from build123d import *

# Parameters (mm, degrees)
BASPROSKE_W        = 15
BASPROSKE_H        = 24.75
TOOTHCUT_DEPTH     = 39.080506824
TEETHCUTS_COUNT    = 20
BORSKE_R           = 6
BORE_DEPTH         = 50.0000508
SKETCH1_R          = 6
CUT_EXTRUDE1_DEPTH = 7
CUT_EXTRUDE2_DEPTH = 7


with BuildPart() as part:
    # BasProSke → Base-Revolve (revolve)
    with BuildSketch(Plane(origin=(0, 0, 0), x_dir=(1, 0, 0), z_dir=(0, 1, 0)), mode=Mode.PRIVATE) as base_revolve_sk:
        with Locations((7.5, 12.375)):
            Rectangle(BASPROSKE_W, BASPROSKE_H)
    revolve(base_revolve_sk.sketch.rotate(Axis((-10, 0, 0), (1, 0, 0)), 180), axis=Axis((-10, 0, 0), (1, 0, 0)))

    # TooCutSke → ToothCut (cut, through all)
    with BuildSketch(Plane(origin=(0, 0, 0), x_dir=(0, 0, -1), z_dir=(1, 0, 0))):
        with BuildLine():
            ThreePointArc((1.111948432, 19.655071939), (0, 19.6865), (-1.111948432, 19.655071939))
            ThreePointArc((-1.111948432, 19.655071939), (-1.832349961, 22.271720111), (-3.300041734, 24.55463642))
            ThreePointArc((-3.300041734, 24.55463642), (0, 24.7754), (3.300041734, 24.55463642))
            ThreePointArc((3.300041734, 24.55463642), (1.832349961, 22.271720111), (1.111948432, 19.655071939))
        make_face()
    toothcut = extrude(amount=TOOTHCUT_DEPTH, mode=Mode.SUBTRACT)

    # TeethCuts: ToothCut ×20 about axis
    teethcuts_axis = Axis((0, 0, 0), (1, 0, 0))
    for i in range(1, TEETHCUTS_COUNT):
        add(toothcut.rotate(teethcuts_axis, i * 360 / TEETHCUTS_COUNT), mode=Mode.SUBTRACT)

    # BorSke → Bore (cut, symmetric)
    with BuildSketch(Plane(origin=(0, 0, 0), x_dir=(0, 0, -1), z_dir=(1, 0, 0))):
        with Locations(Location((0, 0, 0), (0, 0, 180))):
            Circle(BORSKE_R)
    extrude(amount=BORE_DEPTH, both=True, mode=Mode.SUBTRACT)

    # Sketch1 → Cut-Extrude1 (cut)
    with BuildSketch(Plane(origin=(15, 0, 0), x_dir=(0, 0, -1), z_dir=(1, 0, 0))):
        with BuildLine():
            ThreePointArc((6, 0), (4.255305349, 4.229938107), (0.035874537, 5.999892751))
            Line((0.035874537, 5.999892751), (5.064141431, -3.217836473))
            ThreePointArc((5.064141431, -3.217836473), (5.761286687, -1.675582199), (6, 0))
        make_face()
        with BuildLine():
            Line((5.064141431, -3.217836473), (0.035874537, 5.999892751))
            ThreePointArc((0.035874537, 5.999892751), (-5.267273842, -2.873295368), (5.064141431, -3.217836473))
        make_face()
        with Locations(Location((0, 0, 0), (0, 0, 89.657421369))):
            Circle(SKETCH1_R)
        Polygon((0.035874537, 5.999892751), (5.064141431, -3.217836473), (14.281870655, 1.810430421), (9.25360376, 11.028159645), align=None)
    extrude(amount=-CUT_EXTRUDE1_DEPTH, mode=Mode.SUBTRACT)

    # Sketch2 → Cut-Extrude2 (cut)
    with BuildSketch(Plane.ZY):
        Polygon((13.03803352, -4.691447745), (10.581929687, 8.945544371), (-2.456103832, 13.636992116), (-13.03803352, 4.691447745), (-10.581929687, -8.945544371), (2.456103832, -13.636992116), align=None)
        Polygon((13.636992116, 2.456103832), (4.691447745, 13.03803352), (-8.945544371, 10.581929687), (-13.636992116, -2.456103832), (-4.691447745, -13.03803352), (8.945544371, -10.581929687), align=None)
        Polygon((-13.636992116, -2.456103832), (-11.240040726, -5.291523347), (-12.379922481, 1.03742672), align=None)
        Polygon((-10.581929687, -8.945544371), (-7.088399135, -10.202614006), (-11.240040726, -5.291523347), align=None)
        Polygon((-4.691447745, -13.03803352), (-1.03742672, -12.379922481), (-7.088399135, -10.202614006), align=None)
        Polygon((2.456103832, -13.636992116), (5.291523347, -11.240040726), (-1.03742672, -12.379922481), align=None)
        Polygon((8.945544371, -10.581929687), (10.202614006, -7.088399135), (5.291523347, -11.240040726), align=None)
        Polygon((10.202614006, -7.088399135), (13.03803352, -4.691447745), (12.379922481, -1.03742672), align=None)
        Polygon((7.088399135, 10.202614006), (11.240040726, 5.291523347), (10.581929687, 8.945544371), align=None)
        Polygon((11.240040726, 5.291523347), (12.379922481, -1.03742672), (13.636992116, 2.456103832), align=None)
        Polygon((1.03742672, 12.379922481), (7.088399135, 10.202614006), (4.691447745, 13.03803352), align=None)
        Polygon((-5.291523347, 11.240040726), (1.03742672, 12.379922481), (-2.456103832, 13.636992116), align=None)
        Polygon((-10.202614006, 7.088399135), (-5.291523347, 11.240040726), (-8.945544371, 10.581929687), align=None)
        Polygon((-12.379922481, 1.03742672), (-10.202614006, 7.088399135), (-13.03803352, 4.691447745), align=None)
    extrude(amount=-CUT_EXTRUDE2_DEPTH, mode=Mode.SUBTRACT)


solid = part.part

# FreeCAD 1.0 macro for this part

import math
import FreeCAD as App
import Part
import Sketcher
from FreeCAD import Vector
Q = App.Units.Quantity


def add_polygon(sketch, points):
    """Adds a closed chain of lines whose ends are joined by coincident constraints."""
    first, n = sketch.GeometryCount, len(points)
    for a, b in zip(points, points[1:] + points[:1]):
        sketch.addGeometry(Part.LineSegment(App.Vector(*a, 0), App.Vector(*b, 0)), False)
    for i in range(n):
        sketch.addConstraint(Sketcher.Constraint("Coincident", first + i, 2, first + (i + 1) % n, 1))

doc = App.newDocument("Part")
body = doc.addObject("PartDesign::Body", "Body")

# Sketch on XZ plane
sketch1 = body.newObject("Sketcher::SketchObject", "Sketch")
sketch1.AttachmentSupport = (doc.getObject("XZ_Plane"), [""])
sketch1.MapMode = "FlatFace"
add_polygon(sketch1, [(0, -25), (0, 0), (15, 0), (15, -25)])  # lines 0-3
sketch1.addConstraint([
    Sketcher.Constraint("Vertical", 0),
    Sketcher.Constraint("Horizontal", 1),
    Sketcher.Constraint("Vertical", 2),
    Sketcher.Constraint("Horizontal", 3),
    Sketcher.Constraint("Coincident", 0, 2, -1, 1),
    Sketcher.Constraint("DistanceX", 1, 1, 1, 2, Q("15 mm")),
    Sketcher.Constraint("DistanceY", 0, 1, 0, 2, Q("24.75 mm")),
])
revolution = body.newObject("PartDesign::Revolution", "Revolution")
revolution.Profile = sketch1
revolution.ReferenceAxis = (sketch1, ["H_Axis"])
revolution.Angle = 360

# Sketch on YZ plane
sketch2 = body.newObject("Sketcher::SketchObject", "Sketch001")
sketch2.AttachmentSupport = (doc.getObject("YZ_Plane"), [""])
sketch2.MapMode = "FlatFace"
sketch2.addGeometry([
    Part.ArcOfCircle(Part.Circle(Vector(0, 0, 0), Vector(0, 0, 1), 19.7), math.radians(-3.24), math.radians(3.24)),
    Part.ArcOfCircle(Part.Circle(Vector(18.6, -10.1, 0), Vector(0, 0, 1), 9), math.radians(49), math.radians(83)),
    Part.ArcOfCircle(Part.Circle(Vector(0, 0, 0), Vector(0, 0, 1), 24.8), math.radians(-7.65), math.radians(7.65)),
    Part.ArcOfCircle(Part.Circle(Vector(18.6, 10.1, 0), Vector(0, 0, 1), 9), math.radians(-83), math.radians(-49)),
], False)
sketch2.addConstraint([
    Sketcher.Constraint("Coincident", 0, 1, 1, 2),
    Sketcher.Constraint("Coincident", 1, 1, 2, 1),
    Sketcher.Constraint("Coincident", 2, 2, 3, 2),
    Sketcher.Constraint("Coincident", 3, 1, 0, 2),
    Sketcher.Constraint("Coincident", 0, 3, -1, 1),
    Sketcher.Constraint("Coincident", 2, 3, -1, 1),
    Sketcher.Constraint("Equal", 1, 3),
    Sketcher.Constraint("Symmetric", 1, 3, 3, 3, -1),
    Sketcher.Constraint("Radius", 1, Q("9 mm")),
    Sketcher.Constraint("Radius", 0, Q("19.6865 mm")),
    Sketcher.Constraint("Radius", 2, Q("24.7754 mm")),
    Sketcher.Constraint("DistanceY", 1, 3, -1, 1, Q("10.050099 mm")),
    Sketcher.Constraint("DistanceX", -1, 1, 1, 3, Q("18.601761 mm")),
])
pocket1 = body.newObject("PartDesign::Pocket", "Pocket")
pocket1.Profile = sketch2
pocket1.Type = "ThroughAll"
pocket1.Reversed = True
doc.recompute()

polarpattern = body.newObject("PartDesign::PolarPattern", "PolarPattern")
polarpattern.Originals = [pocket1]
polarpattern.Axis = (doc.getObject("X_Axis"), [""])
polarpattern.Angle = 360
polarpattern.Occurrences = 20
body.Tip = polarpattern

# Sketch on YZ plane
sketch3 = body.newObject("Sketcher::SketchObject", "Sketch002")
sketch3.AttachmentSupport = (doc.getObject("YZ_Plane"), [""])
sketch3.MapMode = "FlatFace"
sketch3.addGeometry(Part.Circle(Vector(0, 0, 0), Vector(0, 0, 1), 6), False)
sketch3.addConstraint([
    Sketcher.Constraint("Coincident", 0, 3, -1, 1),
    Sketcher.Constraint("Diameter", 0, Q("12 mm")),
])
pocket2 = body.newObject("PartDesign::Pocket", "Pocket001")
pocket2.Profile = sketch3
pocket2.Length = 100.000102
pocket2.Midplane = True

# Sketch on YZ plane
sketch4 = body.newObject("Sketcher::SketchObject", "Sketch003")
sketch4.AttachmentSupport = (doc.getObject("YZ_Plane"), [""])
sketch4.MapMode = "FlatFace"
sketch4.AttachmentOffset = App.Placement(Vector(0, 0, 15), App.Rotation())
sketch4.addGeometry([
    Part.LineSegment(Vector(11, -9, 0), Vector(6, 0, 0)),
    Part.ArcOfCircle(Part.Circle(Vector(0, 0, 0), Vector(0, 0, 1), 6), math.radians(0), math.radians(238)),
    Part.LineSegment(Vector(-3, -5, 0), Vector(2, -14, 0)),
    Part.LineSegment(Vector(2, -14, 0), Vector(11, -9, 0)),
], False)
sketch4.addConstraint([
    Sketcher.Constraint("Coincident", 0, 2, 1, 1),
    Sketcher.Constraint("Coincident", 1, 2, 2, 1),
    Sketcher.Constraint("Coincident", 2, 2, 3, 1),
    Sketcher.Constraint("Coincident", 3, 2, 0, 1),
    Sketcher.Constraint("Coincident", 1, 3, -1, 1),
    Sketcher.Constraint("Parallel", 0, 2),
    Sketcher.Constraint("Perpendicular", 2, 3),
    Sketcher.Constraint("Equal", 0, 2),
    Sketcher.Constraint("Equal", 2, 3),
    Sketcher.Constraint("Radius", 1, Q("6 mm")),
    Sketcher.Constraint("Distance", 0, Q("10.5 mm")),
    Sketcher.Constraint("DistanceY", 1, 2, -1, 1, Q("5.064141 mm")),
])
pocket3 = body.newObject("PartDesign::Pocket", "Pocket002")
pocket3.Profile = sketch4
pocket3.Length = 7

# Sketch on YZ plane
sketch5 = body.newObject("Sketcher::SketchObject", "Sketch004")
sketch5.AttachmentSupport = (doc.getObject("YZ_Plane"), [""])
sketch5.MapMode = "FlatFace"
add_polygon(sketch5, [(7.1, -10.2), (4.7, -13), (1, -12.4), (-2.5, -13.6), (-5.3, -11.2), (-8.9, -10.6), (-10.2, -7.1), (-13, -4.7), (-12.4, -1), (-13.6, 2.5), (-11.2, 5.3), (-10.6, 8.9), (-7.1, 10.2), (-4.7, 13), (-1, 12.4), (2.5, 13.6), (5.3, 11.2), (8.9, 10.6), (10.2, 7.1), (13, 4.7), (12.4, 1), (13.6, -2.5), (11.2, -5.3), (10.6, -8.9)])  # lines 0-23
sketch5.addConstraint([
    Sketcher.Constraint("Symmetric", 0, 2, 12, 2, -1, 1),
    Sketcher.Constraint("Symmetric", 1, 2, 13, 2, -1, 1),
    Sketcher.Constraint("Symmetric", 2, 2, 14, 2, -1, 1),
    Sketcher.Constraint("Symmetric", 3, 2, 15, 2, -1, 1),
    Sketcher.Constraint("Symmetric", 4, 2, 16, 2, -1, 1),
    Sketcher.Constraint("Symmetric", 5, 2, 17, 2, -1, 1),
    Sketcher.Constraint("Symmetric", 6, 2, 18, 2, -1, 1),
    Sketcher.Constraint("Symmetric", 7, 2, 19, 2, -1, 1),
    Sketcher.Constraint("Symmetric", 8, 2, 20, 2, -1, 1),
    Sketcher.Constraint("Symmetric", 9, 2, 21, 2, -1, 1),
    Sketcher.Constraint("Symmetric", 10, 2, 22, 2, -1, 1),
    Sketcher.Constraint("Symmetric", 11, 2, 23, 2, -1, 1),
    Sketcher.Constraint("Perpendicular", 0, 3),
    Sketcher.Constraint("Parallel", 1, 4),
    Sketcher.Constraint("Perpendicular", 2, 5),
    Sketcher.Constraint("Parallel", 3, 6),
    Sketcher.Constraint("Perpendicular", 4, 7),
    Sketcher.Constraint("Parallel", 5, 8),
    Sketcher.Constraint("Perpendicular", 6, 9),
    Sketcher.Constraint("Parallel", 7, 10),
    Sketcher.Constraint("Perpendicular", 8, 11),
    Sketcher.Constraint("Equal", 0, 1),
    Sketcher.Constraint("Equal", 1, 2),
    Sketcher.Constraint("Equal", 2, 3),
    Sketcher.Constraint("Equal", 3, 4),
    Sketcher.Constraint("Equal", 4, 5),
    Sketcher.Constraint("Equal", 5, 6),
    Sketcher.Constraint("Equal", 6, 7),
    Sketcher.Constraint("Equal", 7, 8),
    Sketcher.Constraint("Equal", 8, 9),
    Sketcher.Constraint("Equal", 9, 10),
    Sketcher.Constraint("Equal", 10, 11),
    Sketcher.Constraint("DistanceY", 5, 2, -1, 1, Q("7.088399 mm")),
    Sketcher.Constraint("DistanceY", 3, 2, -1, 1, Q("11.240041 mm")),
    Sketcher.Constraint("DistanceY", 4, 2, -1, 1, Q("10.58193 mm")),
    Sketcher.Constraint("DistanceX", 1, 2, 0, 2, Q("3.654021 mm")),
])
pocket4 = body.newObject("PartDesign::Pocket", "Pocket003")
pocket4.Profile = sketch5
pocket4.Length = 7
pocket4.Reversed = True

doc.recompute()
